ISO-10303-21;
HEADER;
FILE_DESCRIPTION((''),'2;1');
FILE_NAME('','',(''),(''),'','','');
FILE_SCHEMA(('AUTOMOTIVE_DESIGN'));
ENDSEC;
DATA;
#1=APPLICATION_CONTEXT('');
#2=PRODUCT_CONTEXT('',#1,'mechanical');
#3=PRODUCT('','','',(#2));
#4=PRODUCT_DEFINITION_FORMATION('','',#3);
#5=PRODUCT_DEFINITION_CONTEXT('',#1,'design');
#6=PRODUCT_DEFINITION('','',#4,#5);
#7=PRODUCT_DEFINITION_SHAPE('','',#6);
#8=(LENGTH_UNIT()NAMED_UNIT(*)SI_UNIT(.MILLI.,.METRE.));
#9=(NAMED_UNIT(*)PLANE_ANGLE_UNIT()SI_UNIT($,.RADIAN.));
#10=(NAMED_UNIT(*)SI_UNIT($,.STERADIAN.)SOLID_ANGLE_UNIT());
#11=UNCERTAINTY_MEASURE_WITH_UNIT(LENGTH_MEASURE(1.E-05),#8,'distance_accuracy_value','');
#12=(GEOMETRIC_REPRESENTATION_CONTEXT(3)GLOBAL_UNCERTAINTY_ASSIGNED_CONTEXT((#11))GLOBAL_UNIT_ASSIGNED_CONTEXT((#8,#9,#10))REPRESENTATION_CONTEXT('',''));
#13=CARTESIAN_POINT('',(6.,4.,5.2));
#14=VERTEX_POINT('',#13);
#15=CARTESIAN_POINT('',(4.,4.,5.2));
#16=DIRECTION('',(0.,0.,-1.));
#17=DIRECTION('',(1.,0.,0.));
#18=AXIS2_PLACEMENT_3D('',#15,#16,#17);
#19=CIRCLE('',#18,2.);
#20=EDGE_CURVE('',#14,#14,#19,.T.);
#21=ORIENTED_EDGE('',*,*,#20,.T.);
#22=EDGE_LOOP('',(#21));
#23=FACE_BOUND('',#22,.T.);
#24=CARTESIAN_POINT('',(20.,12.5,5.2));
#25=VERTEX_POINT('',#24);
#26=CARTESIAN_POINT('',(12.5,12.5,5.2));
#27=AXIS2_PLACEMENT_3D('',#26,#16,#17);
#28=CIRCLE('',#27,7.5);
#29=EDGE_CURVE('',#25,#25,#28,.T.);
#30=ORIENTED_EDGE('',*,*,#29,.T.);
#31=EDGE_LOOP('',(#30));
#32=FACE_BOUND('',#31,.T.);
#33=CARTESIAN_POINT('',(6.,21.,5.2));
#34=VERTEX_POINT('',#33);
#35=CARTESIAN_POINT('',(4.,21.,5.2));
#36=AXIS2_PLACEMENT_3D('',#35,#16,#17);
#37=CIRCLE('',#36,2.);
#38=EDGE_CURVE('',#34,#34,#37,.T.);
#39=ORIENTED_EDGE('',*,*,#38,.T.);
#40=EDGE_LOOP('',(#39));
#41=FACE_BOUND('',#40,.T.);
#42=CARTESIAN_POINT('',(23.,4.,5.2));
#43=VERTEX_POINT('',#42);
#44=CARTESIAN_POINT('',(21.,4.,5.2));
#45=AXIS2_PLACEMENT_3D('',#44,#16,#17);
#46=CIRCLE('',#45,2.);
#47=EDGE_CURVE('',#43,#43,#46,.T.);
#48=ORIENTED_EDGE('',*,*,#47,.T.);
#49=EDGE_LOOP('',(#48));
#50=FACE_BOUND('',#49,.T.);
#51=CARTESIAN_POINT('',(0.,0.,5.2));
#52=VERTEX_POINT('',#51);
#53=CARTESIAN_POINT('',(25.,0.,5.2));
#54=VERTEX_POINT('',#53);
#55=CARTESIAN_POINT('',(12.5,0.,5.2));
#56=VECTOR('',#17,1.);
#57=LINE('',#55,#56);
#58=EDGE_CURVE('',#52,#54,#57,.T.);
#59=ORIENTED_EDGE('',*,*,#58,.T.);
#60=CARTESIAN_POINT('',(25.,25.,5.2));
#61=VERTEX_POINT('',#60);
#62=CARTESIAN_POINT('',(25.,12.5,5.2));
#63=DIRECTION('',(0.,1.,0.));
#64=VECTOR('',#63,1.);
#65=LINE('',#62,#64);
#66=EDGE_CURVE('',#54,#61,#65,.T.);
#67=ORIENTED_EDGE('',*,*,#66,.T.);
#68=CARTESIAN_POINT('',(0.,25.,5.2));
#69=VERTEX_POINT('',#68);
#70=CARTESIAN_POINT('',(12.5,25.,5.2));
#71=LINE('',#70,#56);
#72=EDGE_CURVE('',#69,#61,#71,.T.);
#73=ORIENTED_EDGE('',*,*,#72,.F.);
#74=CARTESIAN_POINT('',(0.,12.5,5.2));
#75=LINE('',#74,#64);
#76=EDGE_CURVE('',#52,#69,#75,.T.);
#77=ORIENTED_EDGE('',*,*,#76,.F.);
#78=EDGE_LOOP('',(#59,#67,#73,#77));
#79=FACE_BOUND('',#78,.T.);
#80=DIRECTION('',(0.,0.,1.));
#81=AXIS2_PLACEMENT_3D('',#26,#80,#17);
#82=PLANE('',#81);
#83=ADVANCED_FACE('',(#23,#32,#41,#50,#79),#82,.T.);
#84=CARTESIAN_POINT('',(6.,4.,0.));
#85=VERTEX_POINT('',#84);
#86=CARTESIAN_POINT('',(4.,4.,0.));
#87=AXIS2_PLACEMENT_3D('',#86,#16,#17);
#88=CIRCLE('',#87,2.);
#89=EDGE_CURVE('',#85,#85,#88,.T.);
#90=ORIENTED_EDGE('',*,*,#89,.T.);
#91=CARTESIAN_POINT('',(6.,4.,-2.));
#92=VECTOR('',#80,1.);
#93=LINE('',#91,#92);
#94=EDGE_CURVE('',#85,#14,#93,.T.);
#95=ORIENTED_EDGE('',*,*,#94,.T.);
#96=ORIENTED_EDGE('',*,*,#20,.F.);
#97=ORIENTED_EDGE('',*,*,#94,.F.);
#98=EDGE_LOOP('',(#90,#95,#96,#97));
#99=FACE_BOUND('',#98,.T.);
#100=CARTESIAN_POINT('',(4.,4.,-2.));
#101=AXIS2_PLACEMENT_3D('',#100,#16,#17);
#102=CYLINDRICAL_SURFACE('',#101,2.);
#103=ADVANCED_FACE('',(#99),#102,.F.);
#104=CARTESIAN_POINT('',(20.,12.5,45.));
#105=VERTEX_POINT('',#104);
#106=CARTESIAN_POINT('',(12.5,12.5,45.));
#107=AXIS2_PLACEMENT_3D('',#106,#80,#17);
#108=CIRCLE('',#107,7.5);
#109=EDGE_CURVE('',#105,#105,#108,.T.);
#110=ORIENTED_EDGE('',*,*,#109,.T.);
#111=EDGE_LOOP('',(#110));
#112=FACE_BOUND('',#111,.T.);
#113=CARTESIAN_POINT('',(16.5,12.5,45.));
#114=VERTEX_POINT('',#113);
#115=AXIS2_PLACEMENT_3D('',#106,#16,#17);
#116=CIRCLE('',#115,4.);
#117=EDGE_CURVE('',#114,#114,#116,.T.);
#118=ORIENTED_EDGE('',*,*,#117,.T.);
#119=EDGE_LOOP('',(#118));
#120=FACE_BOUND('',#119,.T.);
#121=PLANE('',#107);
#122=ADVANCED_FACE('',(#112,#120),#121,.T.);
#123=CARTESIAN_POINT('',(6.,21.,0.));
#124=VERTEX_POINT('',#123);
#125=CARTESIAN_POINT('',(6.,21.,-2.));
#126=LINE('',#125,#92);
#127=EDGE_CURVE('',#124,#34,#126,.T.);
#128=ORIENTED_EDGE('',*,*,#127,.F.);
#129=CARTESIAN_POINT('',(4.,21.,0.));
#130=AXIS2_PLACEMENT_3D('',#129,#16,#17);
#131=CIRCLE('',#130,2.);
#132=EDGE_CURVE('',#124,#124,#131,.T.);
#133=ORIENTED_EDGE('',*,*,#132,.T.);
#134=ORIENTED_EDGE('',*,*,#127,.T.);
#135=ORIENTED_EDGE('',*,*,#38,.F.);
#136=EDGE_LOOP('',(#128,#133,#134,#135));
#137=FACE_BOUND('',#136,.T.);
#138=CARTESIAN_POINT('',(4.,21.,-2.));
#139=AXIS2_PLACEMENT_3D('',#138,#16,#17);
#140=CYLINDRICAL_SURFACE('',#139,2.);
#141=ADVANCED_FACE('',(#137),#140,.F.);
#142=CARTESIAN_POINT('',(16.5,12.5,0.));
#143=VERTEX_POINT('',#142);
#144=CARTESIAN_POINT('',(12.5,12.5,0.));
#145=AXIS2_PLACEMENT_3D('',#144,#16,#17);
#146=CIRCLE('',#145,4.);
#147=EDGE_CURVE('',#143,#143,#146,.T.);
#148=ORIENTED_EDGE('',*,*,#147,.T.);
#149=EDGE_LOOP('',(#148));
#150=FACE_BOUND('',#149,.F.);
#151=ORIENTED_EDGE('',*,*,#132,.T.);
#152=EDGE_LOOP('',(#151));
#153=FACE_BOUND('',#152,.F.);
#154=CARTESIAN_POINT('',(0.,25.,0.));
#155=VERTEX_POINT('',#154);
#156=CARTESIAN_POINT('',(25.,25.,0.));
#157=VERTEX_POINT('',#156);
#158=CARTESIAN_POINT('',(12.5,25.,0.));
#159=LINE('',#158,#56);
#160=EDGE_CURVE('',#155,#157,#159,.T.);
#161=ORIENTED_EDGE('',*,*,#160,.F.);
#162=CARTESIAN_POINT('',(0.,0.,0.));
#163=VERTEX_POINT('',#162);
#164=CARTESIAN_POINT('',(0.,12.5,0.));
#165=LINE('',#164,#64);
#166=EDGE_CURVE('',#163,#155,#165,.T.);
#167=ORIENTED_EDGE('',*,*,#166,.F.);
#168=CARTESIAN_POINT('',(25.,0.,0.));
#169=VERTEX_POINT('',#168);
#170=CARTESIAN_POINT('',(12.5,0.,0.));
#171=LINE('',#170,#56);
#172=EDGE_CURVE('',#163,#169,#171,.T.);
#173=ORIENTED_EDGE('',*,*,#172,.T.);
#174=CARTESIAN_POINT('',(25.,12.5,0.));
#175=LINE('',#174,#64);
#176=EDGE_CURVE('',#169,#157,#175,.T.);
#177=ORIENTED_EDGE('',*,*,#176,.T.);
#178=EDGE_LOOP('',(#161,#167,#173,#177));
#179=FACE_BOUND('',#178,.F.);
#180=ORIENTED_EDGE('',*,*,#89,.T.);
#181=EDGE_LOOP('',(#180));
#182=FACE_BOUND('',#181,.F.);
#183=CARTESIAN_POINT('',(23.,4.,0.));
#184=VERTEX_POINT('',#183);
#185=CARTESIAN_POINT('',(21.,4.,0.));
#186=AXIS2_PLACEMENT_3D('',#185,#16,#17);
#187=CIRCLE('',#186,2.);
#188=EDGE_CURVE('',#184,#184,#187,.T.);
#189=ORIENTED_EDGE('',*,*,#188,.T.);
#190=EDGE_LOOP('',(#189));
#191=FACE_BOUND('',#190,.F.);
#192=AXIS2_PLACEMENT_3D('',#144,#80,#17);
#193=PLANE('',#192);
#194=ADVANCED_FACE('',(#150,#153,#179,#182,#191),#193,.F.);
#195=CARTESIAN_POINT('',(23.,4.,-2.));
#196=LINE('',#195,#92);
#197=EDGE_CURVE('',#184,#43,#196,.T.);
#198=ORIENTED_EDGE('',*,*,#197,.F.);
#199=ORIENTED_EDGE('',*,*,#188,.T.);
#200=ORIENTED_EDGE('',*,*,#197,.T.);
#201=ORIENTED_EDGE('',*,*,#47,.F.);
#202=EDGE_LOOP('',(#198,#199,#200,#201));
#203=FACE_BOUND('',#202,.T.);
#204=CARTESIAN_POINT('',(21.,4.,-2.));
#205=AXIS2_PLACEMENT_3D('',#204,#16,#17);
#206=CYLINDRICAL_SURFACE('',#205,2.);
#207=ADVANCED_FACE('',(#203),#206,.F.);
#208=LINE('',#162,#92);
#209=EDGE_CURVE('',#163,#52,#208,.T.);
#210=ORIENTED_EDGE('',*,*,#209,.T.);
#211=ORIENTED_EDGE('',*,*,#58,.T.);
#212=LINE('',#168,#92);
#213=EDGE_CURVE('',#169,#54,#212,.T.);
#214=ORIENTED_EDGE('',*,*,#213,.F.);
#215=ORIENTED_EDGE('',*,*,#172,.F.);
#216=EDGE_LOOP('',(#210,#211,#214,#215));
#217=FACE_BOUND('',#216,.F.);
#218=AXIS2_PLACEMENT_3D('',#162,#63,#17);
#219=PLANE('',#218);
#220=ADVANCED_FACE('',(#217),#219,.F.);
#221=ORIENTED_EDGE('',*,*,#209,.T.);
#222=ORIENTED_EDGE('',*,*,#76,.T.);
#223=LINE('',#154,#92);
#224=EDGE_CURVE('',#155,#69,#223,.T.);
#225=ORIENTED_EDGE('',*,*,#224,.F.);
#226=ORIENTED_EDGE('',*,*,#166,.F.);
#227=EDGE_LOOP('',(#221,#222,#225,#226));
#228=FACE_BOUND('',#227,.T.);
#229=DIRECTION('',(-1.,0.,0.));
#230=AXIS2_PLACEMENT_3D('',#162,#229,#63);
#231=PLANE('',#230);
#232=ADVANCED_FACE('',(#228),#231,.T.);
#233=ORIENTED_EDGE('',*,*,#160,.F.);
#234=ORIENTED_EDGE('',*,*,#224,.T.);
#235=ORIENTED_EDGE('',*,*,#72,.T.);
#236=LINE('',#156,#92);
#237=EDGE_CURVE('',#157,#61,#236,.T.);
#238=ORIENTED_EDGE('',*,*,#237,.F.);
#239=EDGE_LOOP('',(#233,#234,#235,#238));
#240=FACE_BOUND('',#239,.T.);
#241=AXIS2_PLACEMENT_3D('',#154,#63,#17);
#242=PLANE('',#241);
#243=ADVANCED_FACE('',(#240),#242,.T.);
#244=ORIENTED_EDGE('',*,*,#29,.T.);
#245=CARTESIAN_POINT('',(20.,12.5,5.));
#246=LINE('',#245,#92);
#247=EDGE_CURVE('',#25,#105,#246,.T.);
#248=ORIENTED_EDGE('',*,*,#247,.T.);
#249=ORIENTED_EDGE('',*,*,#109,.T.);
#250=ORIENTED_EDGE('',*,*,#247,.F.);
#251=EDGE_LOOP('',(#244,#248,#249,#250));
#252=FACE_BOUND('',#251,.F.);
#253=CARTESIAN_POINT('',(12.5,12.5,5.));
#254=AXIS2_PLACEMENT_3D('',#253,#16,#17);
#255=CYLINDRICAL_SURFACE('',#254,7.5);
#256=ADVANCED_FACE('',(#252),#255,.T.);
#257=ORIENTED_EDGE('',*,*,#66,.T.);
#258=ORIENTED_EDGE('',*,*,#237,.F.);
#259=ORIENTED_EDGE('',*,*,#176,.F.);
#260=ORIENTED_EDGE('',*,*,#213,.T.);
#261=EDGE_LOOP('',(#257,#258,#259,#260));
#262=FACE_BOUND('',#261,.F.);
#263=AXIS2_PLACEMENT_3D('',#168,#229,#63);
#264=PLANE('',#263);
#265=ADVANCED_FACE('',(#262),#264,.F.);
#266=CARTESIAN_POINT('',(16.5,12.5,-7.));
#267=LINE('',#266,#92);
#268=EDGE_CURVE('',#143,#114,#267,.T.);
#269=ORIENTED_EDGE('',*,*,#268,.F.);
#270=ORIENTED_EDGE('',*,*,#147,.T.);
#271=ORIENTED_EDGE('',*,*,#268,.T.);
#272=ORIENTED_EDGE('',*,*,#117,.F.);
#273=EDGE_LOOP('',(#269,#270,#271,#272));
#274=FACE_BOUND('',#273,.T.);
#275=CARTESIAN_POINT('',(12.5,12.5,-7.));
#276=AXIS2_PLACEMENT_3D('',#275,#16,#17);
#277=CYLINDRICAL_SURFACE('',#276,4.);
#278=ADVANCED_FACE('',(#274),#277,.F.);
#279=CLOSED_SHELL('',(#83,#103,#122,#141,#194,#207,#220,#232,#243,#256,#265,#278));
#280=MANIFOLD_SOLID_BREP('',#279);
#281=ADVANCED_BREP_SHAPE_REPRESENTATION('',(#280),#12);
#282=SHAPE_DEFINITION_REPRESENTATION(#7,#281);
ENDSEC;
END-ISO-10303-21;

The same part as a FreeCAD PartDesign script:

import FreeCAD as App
import Part
import Sketcher
Q = App.Units.Quantity

doc = App.newDocument("Part")
body = doc.addObject("PartDesign::Body", "Body")

sketch1 = body.newObject("Sketcher::SketchObject", "Sketch")
sketch1.AttachmentSupport = (doc.getObject("XY_Plane"), [""])
sketch1.MapMode = "FlatFace"
sketch1.AttachmentOffset = App.Placement(App.Vector(0, 0, -2), App.Rotation())
sketch1.addGeometry(Part.Circle(App.Vector(21, 4, 0), App.Vector(0, 0, 1), 2), False)
sketch1.addConstraint([
    Sketcher.Constraint("Diameter", 0, Q("4 mm")),
    Sketcher.Constraint("DistanceX", -1, 1, 0, 3, Q("21 mm")),
    Sketcher.Constraint("DistanceY", -1, 1, 0, 3, Q("4 mm")),
])
pad1 = body.newObject("PartDesign::Pad", "Pad")
pad1.Profile = sketch1
pad1.Length = 10
body2 = doc.addObject("PartDesign::Body", "Body001")

sketch2 = body2.newObject("Sketcher::SketchObject", "Sketch001")
sketch2.AttachmentSupport = (doc.getObject("XY_Plane001"), [""])
sketch2.MapMode = "FlatFace"
sketch2.AttachmentOffset = App.Placement(App.Vector(0, 0, -2), App.Rotation())
sketch2.addGeometry(Part.Circle(App.Vector(4, 21, 0), App.Vector(0, 0, 1), 2), False)
sketch2.addConstraint([
    Sketcher.Constraint("Diameter", 0, Q("4 mm")),
    Sketcher.Constraint("DistanceX", -1, 1, 0, 3, Q("4 mm")),
    Sketcher.Constraint("DistanceY", -1, 1, 0, 3, Q("21 mm")),
])
pad2 = body2.newObject("PartDesign::Pad", "Pad001")
pad2.Profile = sketch2
pad2.Length = 10
body3 = doc.addObject("PartDesign::Body", "Body002")

sketch3 = body3.newObject("Sketcher::SketchObject", "Sketch002")
sketch3.AttachmentSupport = (doc.getObject("XY_Plane002"), [""])
sketch3.MapMode = "FlatFace"
sketch3.AttachmentOffset = App.Placement(App.Vector(0, 0, -2), App.Rotation())
sketch3.addGeometry(Part.Circle(App.Vector(4, 4, 0), App.Vector(0, 0, 1), 2), False)
sketch3.addConstraint([
    Sketcher.Constraint("Diameter", 0, Q("4 mm")),
    Sketcher.Constraint("DistanceX", -1, 1, 0, 3, Q("4 mm")),
    Sketcher.Constraint("DistanceY", -1, 1, 0, 3, Q("4 mm")),
])
pad3 = body3.newObject("PartDesign::Pad", "Pad002")
pad3.Profile = sketch3
pad3.Length = 10
body4 = doc.addObject("PartDesign::Body", "Body003")

sketch4 = body4.newObject("Sketcher::SketchObject", "Sketch003")
sketch4.AttachmentSupport = (doc.getObject("XY_Plane003"), [""])
sketch4.MapMode = "FlatFace"
sketch4.AttachmentOffset = App.Placement(App.Vector(0, 0, -7), App.Rotation())
sketch4.addGeometry(Part.Circle(App.Vector(12.5, 12.5, 0), App.Vector(0, 0, 1), 4), False)
sketch4.addConstraint([
    Sketcher.Constraint("Diameter", 0, Q("8 mm")),
    Sketcher.Constraint("DistanceX", -1, 1, 0, 3, Q("12.5 mm")),
    Sketcher.Constraint("DistanceY", -1, 1, 0, 3, Q("12.5 mm")),
])
pad4 = body4.newObject("PartDesign::Pad", "Pad003")
pad4.Profile = sketch4
pad4.Length = 60
body5 = doc.addObject("PartDesign::Body", "Body004")

sketch5 = body5.newObject("Sketcher::SketchObject", "Sketch004")
sketch5.AttachmentSupport = (doc.getObject("XY_Plane004"), [""])
sketch5.MapMode = "FlatFace"
sketch5.AttachmentOffset = App.Placement(App.Vector(0, 0, 5), App.Rotation())
sketch5.addGeometry(Part.Circle(App.Vector(12, 12, 0), App.Vector(0, 0, 1), 8), False)
sketch5.addConstraint([
    Sketcher.Constraint("Diameter", 0, Q("15 mm")),
    Sketcher.Constraint("DistanceX", -1, 1, 0, 3, Q("12.5 mm")),
    Sketcher.Constraint("DistanceY", -1, 1, 0, 3, Q("12.5 mm")),
])
pad5 = body5.newObject("PartDesign::Pad", "Pad004")
pad5.Profile = sketch5
pad5.Length = 40
body6 = doc.addObject("PartDesign::Body", "Body005")

sketch6 = body6.newObject("Sketcher::SketchObject", "Sketch005")
sketch6.AttachmentSupport = (doc.getObject("XY_Plane005"), [""])
sketch6.MapMode = "FlatFace"
sketch6.addGeometry([
    Part.LineSegment(App.Vector(0, 25, 0), App.Vector(0, 0, 0)),
    Part.LineSegment(App.Vector(0, 0, 0), App.Vector(25, 0, 0)),
    Part.LineSegment(App.Vector(25, 0, 0), App.Vector(25, 25, 0)),
    Part.LineSegment(App.Vector(25, 25, 0), App.Vector(0, 25, 0)),
], False)
sketch6.addConstraint([
    Sketcher.Constraint("Coincident", 0, 2, 1, 1),
    Sketcher.Constraint("Coincident", 1, 2, 2, 1),
    Sketcher.Constraint("Coincident", 2, 2, 3, 1),
    Sketcher.Constraint("Coincident", 3, 2, 0, 1),
    Sketcher.Constraint("Vertical", 0),
    Sketcher.Constraint("Horizontal", 1),
    Sketcher.Constraint("Vertical", 2),
    Sketcher.Constraint("Horizontal", 3),
    Sketcher.Constraint("Coincident", 0, 2, -1, 1),
    Sketcher.Constraint("Equal", 3, 0),
    Sketcher.Constraint("DistanceX", 1, 1, 1, 2, Q("25 mm")),
])
pad6 = body6.newObject("PartDesign::Pad", "Pad005")
pad6.Profile = sketch6
pad6.Length = 5.2
doc.recompute()

boolean = body6.newObject("PartDesign::Boolean", "Boolean")
boolean.Type = "Fuse"
boolean.addObjects([body5])
doc.recompute()

boolean2 = body6.newObject("PartDesign::Boolean", "Boolean001")
boolean2.Type = "Cut"
boolean2.addObjects([body4])
doc.recompute()

boolean3 = body6.newObject("PartDesign::Boolean", "Boolean002")
boolean3.Type = "Cut"
boolean3.addObjects([body3])
doc.recompute()

boolean4 = body6.newObject("PartDesign::Boolean", "Boolean003")
boolean4.Type = "Cut"
boolean4.addObjects([body2])
doc.recompute()

boolean5 = body6.newObject("PartDesign::Boolean", "Boolean004")
boolean5.Type = "Cut"
boolean5.addObjects([body])

doc.recompute()
